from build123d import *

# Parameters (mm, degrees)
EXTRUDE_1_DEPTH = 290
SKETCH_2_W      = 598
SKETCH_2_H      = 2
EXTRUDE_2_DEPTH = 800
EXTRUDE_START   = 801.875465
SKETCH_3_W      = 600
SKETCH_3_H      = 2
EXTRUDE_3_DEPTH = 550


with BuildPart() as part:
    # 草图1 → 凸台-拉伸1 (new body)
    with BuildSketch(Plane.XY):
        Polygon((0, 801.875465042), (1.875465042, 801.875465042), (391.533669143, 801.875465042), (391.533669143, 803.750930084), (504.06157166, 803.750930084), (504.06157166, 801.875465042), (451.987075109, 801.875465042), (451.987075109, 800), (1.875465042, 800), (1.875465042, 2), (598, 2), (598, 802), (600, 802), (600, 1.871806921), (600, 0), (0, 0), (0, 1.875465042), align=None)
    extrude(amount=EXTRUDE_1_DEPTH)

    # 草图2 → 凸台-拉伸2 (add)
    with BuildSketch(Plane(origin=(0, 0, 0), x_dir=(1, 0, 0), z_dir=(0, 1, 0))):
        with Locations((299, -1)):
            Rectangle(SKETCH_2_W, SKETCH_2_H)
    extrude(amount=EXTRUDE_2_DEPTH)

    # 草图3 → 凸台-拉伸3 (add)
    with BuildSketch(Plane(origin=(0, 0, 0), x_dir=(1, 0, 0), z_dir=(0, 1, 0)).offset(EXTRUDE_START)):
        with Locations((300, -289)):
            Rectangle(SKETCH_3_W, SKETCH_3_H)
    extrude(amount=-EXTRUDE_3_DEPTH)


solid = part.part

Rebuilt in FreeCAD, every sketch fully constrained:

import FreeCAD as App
import Part
import Sketcher

doc = App.newDocument("Part")
body = doc.addObject("PartDesign::Body", "Body")

# Sketch on XY plane
sketch1 = body.newObject("Sketcher::SketchObject", "Sketch")
sketch1.AttachmentSupport = (doc.getObject("XY_Plane"), [""])
sketch1.MapMode = "FlatFace"
sketch1.addGeometry([
    Part.LineSegment(App.Vector(391.5, 801.9, 0), App.Vector(0, 801.9, 0)),  # 0
    Part.LineSegment(App.Vector(0, 801.9, 0), App.Vector(0, 0, 0)),  # 1
    Part.LineSegment(App.Vector(0, 0, 0), App.Vector(600, 0, 0)),  # 2
    Part.LineSegment(App.Vector(600, 0, 0), App.Vector(600, 802, 0)),  # 3
    Part.LineSegment(App.Vector(600, 802, 0), App.Vector(598, 802, 0)),  # 4
    Part.LineSegment(App.Vector(598, 802, 0), App.Vector(598, 2, 0)),  # 5
    Part.LineSegment(App.Vector(598, 2, 0), App.Vector(1.9, 2, 0)),  # 6
    Part.LineSegment(App.Vector(1.9, 2, 0), App.Vector(1.9, 800, 0)),  # 7
    Part.LineSegment(App.Vector(1.9, 800, 0), App.Vector(452, 800, 0)),  # 8
    Part.LineSegment(App.Vector(452, 800, 0), App.Vector(452, 801.9, 0)),  # 9
    Part.LineSegment(App.Vector(452, 801.9, 0), App.Vector(504.1, 801.9, 0)),  # 10
    Part.LineSegment(App.Vector(504.1, 801.9, 0), App.Vector(504.1, 803.8, 0)),  # 11
    Part.LineSegment(App.Vector(504.1, 803.8, 0), App.Vector(391.5, 803.8, 0)),  # 12
    Part.LineSegment(App.Vector(391.5, 803.8, 0), App.Vector(391.5, 801.9, 0)),  # 13
], False)
sketch1.addConstraint([
    Sketcher.Constraint("Coincident", 0, 2, 1, 1),
    Sketcher.Constraint("Coincident", 1, 2, 2, 1),
    Sketcher.Constraint("Coincident", 2, 2, 3, 1),
    Sketcher.Constraint("Coincident", 3, 2, 4, 1),
    Sketcher.Constraint("Coincident", 4, 2, 5, 1),
    Sketcher.Constraint("Coincident", 5, 2, 6, 1),
    Sketcher.Constraint("Coincident", 6, 2, 7, 1),
    Sketcher.Constraint("Coincident", 7, 2, 8, 1),
    Sketcher.Constraint("Coincident", 8, 2, 9, 1),
    Sketcher.Constraint("Coincident", 9, 2, 10, 1),
    Sketcher.Constraint("Coincident", 10, 2, 11, 1),
    Sketcher.Constraint("Coincident", 11, 2, 12, 1),
    Sketcher.Constraint("Coincident", 12, 2, 13, 1),
    Sketcher.Constraint("Coincident", 13, 2, 0, 1),
    Sketcher.Constraint("Horizontal", 0),
    Sketcher.Constraint("Vertical", 1),
    Sketcher.Constraint("Horizontal", 2),
    Sketcher.Constraint("Vertical", 3),
    Sketcher.Constraint("Horizontal", 4),
    Sketcher.Constraint("Vertical", 5),
    Sketcher.Constraint("Horizontal", 6),
    Sketcher.Constraint("Vertical", 7),
    Sketcher.Constraint("Horizontal", 8),
    Sketcher.Constraint("Vertical", 9),
    Sketcher.Constraint("Horizontal", 10),
    Sketcher.Constraint("Vertical", 11),
    Sketcher.Constraint("Horizontal", 12),
    Sketcher.Constraint("Vertical", 13),
    Sketcher.Constraint("Coincident", 1, 2, -1, 1),
    Sketcher.Constraint("Horizontal", 0, 2, 9, 2),
    Sketcher.Constraint("Equal", 9, 11),
    Sketcher.Constraint("DistanceX", 2, 1, 2, 2, 600.0),
    Sketcher.Constraint("DistanceX", 4, 2, 4, 1, 2.0),
    Sketcher.Constraint("DistanceY", 3, 1, 3, 2, 802.0),
    Sketcher.Constraint("DistanceY", 5, 2, 5, 1, 800.0),
    Sketcher.Constraint("DistanceY", 7, 1, 7, 2, 798.0),
    Sketcher.Constraint("DistanceX", 0, 2, 0, 1, 391.533669),
    Sketcher.Constraint("DistanceX", 8, 1, 8, 2, 450.11161),
    Sketcher.Constraint("DistanceX", 6, 2, 6, 1, 596.124535),
    Sketcher.Constraint("DistanceX", 10, 1, 10, 2, 52.074497),
    Sketcher.Constraint("DistanceY", 1, 2, 1, 1, 801.875465),
])
pad1 = body.newObject("PartDesign::Pad", "Pad")
pad1.Profile = sketch1
pad1.Length = 290

# Sketch on XZ plane
sketch2 = body.newObject("Sketcher::SketchObject", "Sketch001")
sketch2.AttachmentSupport = (doc.getObject("XZ_Plane"), [""])
sketch2.MapMode = "FlatFace"
sketch2.addGeometry([
    Part.LineSegment(App.Vector(0, 0, 0), App.Vector(0, 2, 0)),
    Part.LineSegment(App.Vector(0, 2, 0), App.Vector(598, 2, 0)),
    Part.LineSegment(App.Vector(598, 2, 0), App.Vector(598, 0, 0)),
    Part.LineSegment(App.Vector(598, 0, 0), App.Vector(0, 0, 0)),
], False)
sketch2.addConstraint([
    Sketcher.Constraint("Coincident", 0, 2, 1, 1),
    Sketcher.Constraint("Coincident", 1, 2, 2, 1),
    Sketcher.Constraint("Coincident", 2, 2, 3, 1),
    Sketcher.Constraint("Coincident", 3, 2, 0, 1),
    Sketcher.Constraint("Vertical", 0),
    Sketcher.Constraint("Horizontal", 1),
    Sketcher.Constraint("Vertical", 2),
    Sketcher.Constraint("Horizontal", 3),
    Sketcher.Constraint("Coincident", 3, 2, -1, 1),
    Sketcher.Constraint("DistanceX", 1, 1, 1, 2, 598.0),
    Sketcher.Constraint("DistanceY", 0, 1, 0, 2, 2.0),
])
pad2 = body.newObject("PartDesign::Pad", "Pad001")
pad2.Profile = sketch2
pad2.Length = 800
pad2.Reversed = True

# Sketch on XZ plane
sketch3 = body.newObject("Sketcher::SketchObject", "Sketch002")
sketch3.AttachmentSupport = (doc.getObject("XZ_Plane"), [""])
sketch3.MapMode = "FlatFace"
sketch3.AttachmentOffset = App.Placement(App.Vector(0, 0, -801.875465), App.Rotation())
sketch3.addGeometry([
    Part.LineSegment(App.Vector(0, 288, 0), App.Vector(0, 290, 0)),
    Part.LineSegment(App.Vector(0, 290, 0), App.Vector(600, 290, 0)),
    Part.LineSegment(App.Vector(600, 290, 0), App.Vector(600, 288, 0)),
    Part.LineSegment(App.Vector(600, 288, 0), App.Vector(0, 288, 0)),
], False)
sketch3.addConstraint([
    Sketcher.Constraint("Coincident", 0, 2, 1, 1),
    Sketcher.Constraint("Coincident", 1, 2, 2, 1),
    Sketcher.Constraint("Coincident", 2, 2, 3, 1),
    Sketcher.Constraint("Coincident", 3, 2, 0, 1),
    Sketcher.Constraint("Vertical", 0),
    Sketcher.Constraint("Horizontal", 1),
    Sketcher.Constraint("Vertical", 2),
    Sketcher.Constraint("Horizontal", 3),
    Sketcher.Constraint("PointOnObject", 0, 2, -2),
    Sketcher.Constraint("DistanceX", 1, 1, 1, 2, 600.0),
    Sketcher.Constraint("DistanceY", 0, 1, 0, 2, 2.0),
    Sketcher.Constraint("DistanceY", -1, 1, 0, 2, 290.0),
])
pad3 = body.newObject("PartDesign::Pad", "Pad002")
pad3.Profile = sketch3
pad3.Length = 550

doc.recompute()
